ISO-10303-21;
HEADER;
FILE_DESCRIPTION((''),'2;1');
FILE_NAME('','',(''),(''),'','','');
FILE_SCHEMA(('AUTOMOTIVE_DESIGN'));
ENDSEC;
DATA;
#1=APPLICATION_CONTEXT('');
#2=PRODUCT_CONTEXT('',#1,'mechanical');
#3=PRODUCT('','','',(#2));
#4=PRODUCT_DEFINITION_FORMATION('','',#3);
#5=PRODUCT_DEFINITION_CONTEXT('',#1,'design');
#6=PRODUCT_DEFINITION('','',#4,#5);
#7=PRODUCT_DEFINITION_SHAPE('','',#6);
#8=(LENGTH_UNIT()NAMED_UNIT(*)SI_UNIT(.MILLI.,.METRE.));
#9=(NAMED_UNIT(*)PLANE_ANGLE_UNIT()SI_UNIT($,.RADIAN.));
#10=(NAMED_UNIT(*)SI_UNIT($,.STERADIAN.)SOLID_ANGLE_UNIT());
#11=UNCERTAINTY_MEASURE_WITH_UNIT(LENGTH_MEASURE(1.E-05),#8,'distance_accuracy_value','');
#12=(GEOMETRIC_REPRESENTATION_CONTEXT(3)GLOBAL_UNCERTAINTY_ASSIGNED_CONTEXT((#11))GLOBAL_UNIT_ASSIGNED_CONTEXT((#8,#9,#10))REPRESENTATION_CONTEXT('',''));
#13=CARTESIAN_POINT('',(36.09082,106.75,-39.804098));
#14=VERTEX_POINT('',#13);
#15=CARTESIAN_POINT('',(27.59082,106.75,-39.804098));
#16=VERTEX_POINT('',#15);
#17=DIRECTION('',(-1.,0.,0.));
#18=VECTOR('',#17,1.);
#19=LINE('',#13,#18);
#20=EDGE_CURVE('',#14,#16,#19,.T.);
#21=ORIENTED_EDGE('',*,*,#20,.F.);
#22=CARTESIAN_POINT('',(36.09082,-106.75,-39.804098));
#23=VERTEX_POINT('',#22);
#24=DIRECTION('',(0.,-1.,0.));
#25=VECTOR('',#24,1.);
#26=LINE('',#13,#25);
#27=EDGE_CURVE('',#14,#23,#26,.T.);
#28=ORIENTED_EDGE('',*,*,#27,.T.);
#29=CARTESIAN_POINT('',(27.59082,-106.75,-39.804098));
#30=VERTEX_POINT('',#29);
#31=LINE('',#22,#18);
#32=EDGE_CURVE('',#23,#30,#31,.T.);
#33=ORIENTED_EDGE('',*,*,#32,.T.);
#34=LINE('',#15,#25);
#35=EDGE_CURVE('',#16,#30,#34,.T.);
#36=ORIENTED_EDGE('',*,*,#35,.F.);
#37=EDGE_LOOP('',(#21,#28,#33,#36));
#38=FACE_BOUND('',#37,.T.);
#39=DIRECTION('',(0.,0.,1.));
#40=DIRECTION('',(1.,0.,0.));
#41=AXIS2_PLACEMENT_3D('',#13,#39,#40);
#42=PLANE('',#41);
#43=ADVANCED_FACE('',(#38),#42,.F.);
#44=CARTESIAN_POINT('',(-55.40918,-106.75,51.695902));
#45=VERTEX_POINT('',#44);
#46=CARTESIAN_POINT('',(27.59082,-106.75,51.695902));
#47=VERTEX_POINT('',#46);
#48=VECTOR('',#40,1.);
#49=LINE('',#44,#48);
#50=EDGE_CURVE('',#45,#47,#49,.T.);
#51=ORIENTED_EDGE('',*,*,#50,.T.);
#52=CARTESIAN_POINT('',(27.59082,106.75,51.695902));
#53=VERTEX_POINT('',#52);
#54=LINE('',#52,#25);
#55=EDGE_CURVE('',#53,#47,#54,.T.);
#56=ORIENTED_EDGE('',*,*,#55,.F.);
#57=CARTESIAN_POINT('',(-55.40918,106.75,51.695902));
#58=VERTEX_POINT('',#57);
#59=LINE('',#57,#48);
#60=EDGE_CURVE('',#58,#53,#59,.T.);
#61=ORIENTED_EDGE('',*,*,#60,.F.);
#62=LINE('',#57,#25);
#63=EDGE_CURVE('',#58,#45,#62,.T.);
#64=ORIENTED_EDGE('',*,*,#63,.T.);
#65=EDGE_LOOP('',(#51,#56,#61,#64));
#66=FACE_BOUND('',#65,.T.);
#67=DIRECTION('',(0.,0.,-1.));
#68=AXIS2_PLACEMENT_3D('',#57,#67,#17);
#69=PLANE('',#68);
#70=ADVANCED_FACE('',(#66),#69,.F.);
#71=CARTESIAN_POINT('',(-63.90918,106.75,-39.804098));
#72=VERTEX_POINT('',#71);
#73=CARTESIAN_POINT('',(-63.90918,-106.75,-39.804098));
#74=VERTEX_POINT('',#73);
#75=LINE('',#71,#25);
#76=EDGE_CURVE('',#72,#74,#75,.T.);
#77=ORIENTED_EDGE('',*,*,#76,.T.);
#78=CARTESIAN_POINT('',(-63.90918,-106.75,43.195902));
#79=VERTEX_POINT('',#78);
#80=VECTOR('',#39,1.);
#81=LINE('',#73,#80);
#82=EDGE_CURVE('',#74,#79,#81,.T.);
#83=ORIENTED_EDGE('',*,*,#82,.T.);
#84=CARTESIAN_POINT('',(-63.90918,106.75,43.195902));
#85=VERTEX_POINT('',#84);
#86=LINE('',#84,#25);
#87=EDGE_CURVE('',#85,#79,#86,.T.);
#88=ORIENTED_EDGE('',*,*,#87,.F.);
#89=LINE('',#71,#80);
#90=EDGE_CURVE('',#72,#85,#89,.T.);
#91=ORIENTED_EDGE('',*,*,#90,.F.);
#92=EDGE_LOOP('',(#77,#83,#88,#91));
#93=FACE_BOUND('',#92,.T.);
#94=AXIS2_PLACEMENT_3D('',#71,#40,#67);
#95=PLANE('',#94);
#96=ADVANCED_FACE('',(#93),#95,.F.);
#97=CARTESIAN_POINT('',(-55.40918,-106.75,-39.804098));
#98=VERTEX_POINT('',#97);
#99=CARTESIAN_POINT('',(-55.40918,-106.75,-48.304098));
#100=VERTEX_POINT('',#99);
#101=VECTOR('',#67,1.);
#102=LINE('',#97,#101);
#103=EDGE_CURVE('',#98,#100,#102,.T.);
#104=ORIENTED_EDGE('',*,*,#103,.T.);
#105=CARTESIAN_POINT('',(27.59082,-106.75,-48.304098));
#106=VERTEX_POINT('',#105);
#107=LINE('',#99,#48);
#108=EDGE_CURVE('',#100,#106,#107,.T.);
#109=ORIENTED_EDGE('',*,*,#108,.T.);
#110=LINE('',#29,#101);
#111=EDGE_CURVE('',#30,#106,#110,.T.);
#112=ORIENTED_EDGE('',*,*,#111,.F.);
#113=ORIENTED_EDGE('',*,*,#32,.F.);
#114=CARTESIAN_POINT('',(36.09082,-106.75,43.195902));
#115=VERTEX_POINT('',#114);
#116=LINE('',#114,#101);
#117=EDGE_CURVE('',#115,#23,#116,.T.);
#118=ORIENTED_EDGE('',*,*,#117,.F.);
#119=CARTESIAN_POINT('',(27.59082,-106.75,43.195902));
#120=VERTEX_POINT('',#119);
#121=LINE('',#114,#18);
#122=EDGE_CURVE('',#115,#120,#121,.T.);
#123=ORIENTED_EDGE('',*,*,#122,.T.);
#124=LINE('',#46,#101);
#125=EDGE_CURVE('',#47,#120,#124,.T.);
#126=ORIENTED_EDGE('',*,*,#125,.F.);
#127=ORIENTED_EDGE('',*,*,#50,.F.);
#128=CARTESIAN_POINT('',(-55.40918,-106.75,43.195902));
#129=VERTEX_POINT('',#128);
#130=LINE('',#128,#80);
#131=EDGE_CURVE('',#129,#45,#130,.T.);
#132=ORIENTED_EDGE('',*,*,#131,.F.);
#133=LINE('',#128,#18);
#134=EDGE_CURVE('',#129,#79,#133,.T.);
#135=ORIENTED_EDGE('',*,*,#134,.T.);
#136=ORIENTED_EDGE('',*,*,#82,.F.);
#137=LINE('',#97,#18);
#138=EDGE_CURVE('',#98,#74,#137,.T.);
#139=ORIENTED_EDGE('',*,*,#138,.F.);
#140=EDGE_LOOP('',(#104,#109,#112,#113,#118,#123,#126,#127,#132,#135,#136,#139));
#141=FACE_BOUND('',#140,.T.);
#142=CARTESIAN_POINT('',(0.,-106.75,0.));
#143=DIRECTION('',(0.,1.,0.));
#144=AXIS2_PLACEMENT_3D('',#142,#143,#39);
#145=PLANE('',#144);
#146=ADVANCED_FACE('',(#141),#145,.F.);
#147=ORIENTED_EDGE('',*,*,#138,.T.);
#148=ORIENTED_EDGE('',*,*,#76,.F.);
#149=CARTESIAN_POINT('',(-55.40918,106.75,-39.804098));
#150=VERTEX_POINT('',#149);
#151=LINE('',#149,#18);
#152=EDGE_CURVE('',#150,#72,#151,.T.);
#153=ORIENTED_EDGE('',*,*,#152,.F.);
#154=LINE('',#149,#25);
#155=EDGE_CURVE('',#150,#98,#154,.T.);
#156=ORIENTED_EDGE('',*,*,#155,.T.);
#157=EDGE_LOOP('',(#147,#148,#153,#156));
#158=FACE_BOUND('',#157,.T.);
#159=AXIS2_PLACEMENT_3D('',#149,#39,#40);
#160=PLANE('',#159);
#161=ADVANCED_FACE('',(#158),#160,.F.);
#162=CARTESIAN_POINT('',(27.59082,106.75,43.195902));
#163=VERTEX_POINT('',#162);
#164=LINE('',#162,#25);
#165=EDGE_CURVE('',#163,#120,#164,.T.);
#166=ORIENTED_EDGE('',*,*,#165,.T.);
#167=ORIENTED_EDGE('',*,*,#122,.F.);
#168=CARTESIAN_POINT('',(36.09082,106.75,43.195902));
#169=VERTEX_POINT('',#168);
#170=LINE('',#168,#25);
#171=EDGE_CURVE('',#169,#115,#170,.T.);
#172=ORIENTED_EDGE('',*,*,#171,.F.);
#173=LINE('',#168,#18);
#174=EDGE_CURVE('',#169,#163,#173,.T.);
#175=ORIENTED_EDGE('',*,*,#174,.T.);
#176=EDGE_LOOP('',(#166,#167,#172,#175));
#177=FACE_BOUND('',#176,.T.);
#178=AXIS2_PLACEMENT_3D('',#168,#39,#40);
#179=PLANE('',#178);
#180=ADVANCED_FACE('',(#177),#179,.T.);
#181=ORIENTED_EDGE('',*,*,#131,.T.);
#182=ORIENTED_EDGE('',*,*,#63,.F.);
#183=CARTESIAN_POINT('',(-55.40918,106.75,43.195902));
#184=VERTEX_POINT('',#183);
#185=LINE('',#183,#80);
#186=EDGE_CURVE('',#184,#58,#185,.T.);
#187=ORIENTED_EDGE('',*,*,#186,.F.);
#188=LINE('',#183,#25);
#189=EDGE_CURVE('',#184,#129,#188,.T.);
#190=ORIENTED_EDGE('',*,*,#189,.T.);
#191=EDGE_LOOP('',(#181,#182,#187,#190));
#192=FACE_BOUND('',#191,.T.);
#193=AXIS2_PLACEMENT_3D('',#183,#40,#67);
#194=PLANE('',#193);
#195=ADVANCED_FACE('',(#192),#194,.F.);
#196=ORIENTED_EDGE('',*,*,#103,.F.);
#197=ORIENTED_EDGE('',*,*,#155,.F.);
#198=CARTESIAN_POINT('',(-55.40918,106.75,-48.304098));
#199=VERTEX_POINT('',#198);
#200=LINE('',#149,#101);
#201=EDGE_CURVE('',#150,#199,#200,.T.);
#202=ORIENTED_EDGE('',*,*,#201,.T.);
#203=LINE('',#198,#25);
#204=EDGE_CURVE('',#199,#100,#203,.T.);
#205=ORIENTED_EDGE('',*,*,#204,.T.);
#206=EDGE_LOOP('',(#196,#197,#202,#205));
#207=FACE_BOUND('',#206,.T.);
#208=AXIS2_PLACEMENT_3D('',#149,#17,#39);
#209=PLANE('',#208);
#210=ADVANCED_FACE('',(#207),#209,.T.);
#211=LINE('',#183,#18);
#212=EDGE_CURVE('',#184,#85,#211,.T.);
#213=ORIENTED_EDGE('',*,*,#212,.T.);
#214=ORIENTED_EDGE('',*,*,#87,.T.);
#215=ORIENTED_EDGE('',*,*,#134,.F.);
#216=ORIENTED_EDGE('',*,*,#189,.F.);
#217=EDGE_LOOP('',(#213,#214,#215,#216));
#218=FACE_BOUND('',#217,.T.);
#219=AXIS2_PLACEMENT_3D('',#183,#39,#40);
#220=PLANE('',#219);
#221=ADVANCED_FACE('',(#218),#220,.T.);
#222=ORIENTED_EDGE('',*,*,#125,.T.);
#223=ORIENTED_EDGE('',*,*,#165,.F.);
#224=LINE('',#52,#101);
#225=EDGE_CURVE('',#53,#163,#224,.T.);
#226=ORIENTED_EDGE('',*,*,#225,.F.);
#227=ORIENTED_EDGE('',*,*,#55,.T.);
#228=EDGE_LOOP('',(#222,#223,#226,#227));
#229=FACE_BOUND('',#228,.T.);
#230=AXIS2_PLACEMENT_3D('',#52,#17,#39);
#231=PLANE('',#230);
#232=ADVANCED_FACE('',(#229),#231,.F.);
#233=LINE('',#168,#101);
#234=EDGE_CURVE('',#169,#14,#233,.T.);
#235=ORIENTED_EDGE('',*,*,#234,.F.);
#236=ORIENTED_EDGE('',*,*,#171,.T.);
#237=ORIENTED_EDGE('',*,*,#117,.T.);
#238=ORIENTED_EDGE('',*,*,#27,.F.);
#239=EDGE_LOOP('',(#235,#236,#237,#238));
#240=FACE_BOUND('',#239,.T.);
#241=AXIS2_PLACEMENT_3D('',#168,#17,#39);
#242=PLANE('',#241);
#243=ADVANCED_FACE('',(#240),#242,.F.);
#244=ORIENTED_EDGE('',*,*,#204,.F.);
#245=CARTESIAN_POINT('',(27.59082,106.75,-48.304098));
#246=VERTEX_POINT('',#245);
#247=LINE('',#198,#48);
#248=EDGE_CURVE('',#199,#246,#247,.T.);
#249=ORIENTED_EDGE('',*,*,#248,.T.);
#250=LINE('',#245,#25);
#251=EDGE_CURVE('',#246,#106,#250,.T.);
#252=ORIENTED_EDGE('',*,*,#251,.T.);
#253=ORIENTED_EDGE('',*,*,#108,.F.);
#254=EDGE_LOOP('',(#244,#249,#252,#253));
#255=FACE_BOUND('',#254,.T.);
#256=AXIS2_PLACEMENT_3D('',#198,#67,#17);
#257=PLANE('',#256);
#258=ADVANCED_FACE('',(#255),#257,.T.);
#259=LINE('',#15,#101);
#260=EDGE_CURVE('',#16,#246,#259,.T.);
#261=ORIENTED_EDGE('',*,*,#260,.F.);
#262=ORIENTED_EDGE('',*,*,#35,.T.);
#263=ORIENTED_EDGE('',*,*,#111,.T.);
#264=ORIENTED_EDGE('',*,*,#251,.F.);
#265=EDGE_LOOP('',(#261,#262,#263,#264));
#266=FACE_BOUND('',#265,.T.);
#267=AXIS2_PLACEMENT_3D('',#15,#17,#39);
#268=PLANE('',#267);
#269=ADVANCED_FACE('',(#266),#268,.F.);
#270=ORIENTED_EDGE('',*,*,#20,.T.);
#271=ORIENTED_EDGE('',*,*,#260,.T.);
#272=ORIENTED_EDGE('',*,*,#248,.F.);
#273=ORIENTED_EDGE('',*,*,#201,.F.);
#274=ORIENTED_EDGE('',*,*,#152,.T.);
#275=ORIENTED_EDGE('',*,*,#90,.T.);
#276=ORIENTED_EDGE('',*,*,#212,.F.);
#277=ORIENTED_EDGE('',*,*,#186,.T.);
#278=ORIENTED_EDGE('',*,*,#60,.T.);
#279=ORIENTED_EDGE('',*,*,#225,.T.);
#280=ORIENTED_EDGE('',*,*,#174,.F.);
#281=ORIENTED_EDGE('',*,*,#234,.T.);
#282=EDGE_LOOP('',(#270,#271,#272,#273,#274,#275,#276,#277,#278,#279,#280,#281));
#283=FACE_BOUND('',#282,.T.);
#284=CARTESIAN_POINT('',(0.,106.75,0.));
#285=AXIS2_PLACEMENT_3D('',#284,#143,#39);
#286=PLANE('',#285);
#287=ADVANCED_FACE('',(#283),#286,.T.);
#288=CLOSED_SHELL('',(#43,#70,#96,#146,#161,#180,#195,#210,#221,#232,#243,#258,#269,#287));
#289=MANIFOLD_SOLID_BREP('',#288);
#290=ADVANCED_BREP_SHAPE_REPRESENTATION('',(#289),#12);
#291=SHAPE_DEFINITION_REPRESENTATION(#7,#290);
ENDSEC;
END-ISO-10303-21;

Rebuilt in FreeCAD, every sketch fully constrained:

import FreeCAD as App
import Part
import Sketcher

V = App.Vector
Q = App.Units.Quantity


def add_polygon(sketch, points):
    """Adds a closed chain of lines whose ends are joined by coincident constraints."""
    first, n = sketch.GeometryCount, len(points)
    for a, b in zip(points, points[1:] + points[:1]):
        sketch.addGeometry(Part.LineSegment(App.Vector(*a, 0), App.Vector(*b, 0)), False)
    for i in range(n):
        sketch.addConstraint(Sketcher.Constraint("Coincident", first + i, 2, first + (i + 1) % n, 1))

doc = App.newDocument("Part")
body = doc.addObject("PartDesign::Body", "Body")

sketch1 = body.newObject("Sketcher::SketchObject", "Sketch")
sketch1.AttachmentSupport = (doc.getObject("XZ_Plane"), [""])
sketch1.MapMode = "FlatFace"
add_polygon(sketch1, [(27.59082, 51.695902), (27.59082, 43.195902), (36.09082, 43.195902), (36.09082, -39.804098), (27.59082, -39.804098), (27.59082, -48.304098), (-55.40918, -48.304098), (-55.40918, -39.804098), (-63.90918, -39.804098), (-63.90918, 43.195902), (-55.40918, 43.195902), (-55.40918, 51.695902)])
sketch1.addConstraint([
    Sketcher.Constraint("Vertical", 0),
    Sketcher.Constraint("Horizontal", 1),
    Sketcher.Constraint("Vertical", 2),
    Sketcher.Constraint("Horizontal", 3),
    Sketcher.Constraint("Vertical", 4),
    Sketcher.Constraint("Horizontal", 5),
    Sketcher.Constraint("Vertical", 6),
    Sketcher.Constraint("Horizontal", 7),
    Sketcher.Constraint("Vertical", 8),
    Sketcher.Constraint("Horizontal", 9),
    Sketcher.Constraint("Vertical", 10),
    Sketcher.Constraint("Horizontal", 11),
    Sketcher.Constraint("Horizontal", 3, 2, 6, 2),
    Sketcher.Constraint("Horizontal", 1, 2, 8, 2),
    Sketcher.Constraint("Vertical", 0, 2, 3, 2),
    Sketcher.Constraint("Vertical", 6, 2, 9, 2),
    Sketcher.Constraint("Equal", 3, 7),
    Sketcher.Constraint("Equal", 9, 0),
    Sketcher.Constraint("Equal", 11, 2),
    Sketcher.Constraint("Equal", 0, 4),
    Sketcher.Constraint("DistanceX", 5, 2, 5, 1, Q("83 mm")),
    Sketcher.Constraint("DistanceX", 1, 1, 1, 2, Q("8.5 mm")),
    Sketcher.Constraint("DistanceY", -1, 1, 0, 2, Q("43.195902 mm")),
    Sketcher.Constraint("DistanceX", -1, 1, 0, 2, Q("27.59082 mm")),
])
pad1 = body.newObject("PartDesign::Pad", "Pad")
pad1.Profile = sketch1
pad1.Length = 213.5
pad1.Midplane = True

doc.recompute()
